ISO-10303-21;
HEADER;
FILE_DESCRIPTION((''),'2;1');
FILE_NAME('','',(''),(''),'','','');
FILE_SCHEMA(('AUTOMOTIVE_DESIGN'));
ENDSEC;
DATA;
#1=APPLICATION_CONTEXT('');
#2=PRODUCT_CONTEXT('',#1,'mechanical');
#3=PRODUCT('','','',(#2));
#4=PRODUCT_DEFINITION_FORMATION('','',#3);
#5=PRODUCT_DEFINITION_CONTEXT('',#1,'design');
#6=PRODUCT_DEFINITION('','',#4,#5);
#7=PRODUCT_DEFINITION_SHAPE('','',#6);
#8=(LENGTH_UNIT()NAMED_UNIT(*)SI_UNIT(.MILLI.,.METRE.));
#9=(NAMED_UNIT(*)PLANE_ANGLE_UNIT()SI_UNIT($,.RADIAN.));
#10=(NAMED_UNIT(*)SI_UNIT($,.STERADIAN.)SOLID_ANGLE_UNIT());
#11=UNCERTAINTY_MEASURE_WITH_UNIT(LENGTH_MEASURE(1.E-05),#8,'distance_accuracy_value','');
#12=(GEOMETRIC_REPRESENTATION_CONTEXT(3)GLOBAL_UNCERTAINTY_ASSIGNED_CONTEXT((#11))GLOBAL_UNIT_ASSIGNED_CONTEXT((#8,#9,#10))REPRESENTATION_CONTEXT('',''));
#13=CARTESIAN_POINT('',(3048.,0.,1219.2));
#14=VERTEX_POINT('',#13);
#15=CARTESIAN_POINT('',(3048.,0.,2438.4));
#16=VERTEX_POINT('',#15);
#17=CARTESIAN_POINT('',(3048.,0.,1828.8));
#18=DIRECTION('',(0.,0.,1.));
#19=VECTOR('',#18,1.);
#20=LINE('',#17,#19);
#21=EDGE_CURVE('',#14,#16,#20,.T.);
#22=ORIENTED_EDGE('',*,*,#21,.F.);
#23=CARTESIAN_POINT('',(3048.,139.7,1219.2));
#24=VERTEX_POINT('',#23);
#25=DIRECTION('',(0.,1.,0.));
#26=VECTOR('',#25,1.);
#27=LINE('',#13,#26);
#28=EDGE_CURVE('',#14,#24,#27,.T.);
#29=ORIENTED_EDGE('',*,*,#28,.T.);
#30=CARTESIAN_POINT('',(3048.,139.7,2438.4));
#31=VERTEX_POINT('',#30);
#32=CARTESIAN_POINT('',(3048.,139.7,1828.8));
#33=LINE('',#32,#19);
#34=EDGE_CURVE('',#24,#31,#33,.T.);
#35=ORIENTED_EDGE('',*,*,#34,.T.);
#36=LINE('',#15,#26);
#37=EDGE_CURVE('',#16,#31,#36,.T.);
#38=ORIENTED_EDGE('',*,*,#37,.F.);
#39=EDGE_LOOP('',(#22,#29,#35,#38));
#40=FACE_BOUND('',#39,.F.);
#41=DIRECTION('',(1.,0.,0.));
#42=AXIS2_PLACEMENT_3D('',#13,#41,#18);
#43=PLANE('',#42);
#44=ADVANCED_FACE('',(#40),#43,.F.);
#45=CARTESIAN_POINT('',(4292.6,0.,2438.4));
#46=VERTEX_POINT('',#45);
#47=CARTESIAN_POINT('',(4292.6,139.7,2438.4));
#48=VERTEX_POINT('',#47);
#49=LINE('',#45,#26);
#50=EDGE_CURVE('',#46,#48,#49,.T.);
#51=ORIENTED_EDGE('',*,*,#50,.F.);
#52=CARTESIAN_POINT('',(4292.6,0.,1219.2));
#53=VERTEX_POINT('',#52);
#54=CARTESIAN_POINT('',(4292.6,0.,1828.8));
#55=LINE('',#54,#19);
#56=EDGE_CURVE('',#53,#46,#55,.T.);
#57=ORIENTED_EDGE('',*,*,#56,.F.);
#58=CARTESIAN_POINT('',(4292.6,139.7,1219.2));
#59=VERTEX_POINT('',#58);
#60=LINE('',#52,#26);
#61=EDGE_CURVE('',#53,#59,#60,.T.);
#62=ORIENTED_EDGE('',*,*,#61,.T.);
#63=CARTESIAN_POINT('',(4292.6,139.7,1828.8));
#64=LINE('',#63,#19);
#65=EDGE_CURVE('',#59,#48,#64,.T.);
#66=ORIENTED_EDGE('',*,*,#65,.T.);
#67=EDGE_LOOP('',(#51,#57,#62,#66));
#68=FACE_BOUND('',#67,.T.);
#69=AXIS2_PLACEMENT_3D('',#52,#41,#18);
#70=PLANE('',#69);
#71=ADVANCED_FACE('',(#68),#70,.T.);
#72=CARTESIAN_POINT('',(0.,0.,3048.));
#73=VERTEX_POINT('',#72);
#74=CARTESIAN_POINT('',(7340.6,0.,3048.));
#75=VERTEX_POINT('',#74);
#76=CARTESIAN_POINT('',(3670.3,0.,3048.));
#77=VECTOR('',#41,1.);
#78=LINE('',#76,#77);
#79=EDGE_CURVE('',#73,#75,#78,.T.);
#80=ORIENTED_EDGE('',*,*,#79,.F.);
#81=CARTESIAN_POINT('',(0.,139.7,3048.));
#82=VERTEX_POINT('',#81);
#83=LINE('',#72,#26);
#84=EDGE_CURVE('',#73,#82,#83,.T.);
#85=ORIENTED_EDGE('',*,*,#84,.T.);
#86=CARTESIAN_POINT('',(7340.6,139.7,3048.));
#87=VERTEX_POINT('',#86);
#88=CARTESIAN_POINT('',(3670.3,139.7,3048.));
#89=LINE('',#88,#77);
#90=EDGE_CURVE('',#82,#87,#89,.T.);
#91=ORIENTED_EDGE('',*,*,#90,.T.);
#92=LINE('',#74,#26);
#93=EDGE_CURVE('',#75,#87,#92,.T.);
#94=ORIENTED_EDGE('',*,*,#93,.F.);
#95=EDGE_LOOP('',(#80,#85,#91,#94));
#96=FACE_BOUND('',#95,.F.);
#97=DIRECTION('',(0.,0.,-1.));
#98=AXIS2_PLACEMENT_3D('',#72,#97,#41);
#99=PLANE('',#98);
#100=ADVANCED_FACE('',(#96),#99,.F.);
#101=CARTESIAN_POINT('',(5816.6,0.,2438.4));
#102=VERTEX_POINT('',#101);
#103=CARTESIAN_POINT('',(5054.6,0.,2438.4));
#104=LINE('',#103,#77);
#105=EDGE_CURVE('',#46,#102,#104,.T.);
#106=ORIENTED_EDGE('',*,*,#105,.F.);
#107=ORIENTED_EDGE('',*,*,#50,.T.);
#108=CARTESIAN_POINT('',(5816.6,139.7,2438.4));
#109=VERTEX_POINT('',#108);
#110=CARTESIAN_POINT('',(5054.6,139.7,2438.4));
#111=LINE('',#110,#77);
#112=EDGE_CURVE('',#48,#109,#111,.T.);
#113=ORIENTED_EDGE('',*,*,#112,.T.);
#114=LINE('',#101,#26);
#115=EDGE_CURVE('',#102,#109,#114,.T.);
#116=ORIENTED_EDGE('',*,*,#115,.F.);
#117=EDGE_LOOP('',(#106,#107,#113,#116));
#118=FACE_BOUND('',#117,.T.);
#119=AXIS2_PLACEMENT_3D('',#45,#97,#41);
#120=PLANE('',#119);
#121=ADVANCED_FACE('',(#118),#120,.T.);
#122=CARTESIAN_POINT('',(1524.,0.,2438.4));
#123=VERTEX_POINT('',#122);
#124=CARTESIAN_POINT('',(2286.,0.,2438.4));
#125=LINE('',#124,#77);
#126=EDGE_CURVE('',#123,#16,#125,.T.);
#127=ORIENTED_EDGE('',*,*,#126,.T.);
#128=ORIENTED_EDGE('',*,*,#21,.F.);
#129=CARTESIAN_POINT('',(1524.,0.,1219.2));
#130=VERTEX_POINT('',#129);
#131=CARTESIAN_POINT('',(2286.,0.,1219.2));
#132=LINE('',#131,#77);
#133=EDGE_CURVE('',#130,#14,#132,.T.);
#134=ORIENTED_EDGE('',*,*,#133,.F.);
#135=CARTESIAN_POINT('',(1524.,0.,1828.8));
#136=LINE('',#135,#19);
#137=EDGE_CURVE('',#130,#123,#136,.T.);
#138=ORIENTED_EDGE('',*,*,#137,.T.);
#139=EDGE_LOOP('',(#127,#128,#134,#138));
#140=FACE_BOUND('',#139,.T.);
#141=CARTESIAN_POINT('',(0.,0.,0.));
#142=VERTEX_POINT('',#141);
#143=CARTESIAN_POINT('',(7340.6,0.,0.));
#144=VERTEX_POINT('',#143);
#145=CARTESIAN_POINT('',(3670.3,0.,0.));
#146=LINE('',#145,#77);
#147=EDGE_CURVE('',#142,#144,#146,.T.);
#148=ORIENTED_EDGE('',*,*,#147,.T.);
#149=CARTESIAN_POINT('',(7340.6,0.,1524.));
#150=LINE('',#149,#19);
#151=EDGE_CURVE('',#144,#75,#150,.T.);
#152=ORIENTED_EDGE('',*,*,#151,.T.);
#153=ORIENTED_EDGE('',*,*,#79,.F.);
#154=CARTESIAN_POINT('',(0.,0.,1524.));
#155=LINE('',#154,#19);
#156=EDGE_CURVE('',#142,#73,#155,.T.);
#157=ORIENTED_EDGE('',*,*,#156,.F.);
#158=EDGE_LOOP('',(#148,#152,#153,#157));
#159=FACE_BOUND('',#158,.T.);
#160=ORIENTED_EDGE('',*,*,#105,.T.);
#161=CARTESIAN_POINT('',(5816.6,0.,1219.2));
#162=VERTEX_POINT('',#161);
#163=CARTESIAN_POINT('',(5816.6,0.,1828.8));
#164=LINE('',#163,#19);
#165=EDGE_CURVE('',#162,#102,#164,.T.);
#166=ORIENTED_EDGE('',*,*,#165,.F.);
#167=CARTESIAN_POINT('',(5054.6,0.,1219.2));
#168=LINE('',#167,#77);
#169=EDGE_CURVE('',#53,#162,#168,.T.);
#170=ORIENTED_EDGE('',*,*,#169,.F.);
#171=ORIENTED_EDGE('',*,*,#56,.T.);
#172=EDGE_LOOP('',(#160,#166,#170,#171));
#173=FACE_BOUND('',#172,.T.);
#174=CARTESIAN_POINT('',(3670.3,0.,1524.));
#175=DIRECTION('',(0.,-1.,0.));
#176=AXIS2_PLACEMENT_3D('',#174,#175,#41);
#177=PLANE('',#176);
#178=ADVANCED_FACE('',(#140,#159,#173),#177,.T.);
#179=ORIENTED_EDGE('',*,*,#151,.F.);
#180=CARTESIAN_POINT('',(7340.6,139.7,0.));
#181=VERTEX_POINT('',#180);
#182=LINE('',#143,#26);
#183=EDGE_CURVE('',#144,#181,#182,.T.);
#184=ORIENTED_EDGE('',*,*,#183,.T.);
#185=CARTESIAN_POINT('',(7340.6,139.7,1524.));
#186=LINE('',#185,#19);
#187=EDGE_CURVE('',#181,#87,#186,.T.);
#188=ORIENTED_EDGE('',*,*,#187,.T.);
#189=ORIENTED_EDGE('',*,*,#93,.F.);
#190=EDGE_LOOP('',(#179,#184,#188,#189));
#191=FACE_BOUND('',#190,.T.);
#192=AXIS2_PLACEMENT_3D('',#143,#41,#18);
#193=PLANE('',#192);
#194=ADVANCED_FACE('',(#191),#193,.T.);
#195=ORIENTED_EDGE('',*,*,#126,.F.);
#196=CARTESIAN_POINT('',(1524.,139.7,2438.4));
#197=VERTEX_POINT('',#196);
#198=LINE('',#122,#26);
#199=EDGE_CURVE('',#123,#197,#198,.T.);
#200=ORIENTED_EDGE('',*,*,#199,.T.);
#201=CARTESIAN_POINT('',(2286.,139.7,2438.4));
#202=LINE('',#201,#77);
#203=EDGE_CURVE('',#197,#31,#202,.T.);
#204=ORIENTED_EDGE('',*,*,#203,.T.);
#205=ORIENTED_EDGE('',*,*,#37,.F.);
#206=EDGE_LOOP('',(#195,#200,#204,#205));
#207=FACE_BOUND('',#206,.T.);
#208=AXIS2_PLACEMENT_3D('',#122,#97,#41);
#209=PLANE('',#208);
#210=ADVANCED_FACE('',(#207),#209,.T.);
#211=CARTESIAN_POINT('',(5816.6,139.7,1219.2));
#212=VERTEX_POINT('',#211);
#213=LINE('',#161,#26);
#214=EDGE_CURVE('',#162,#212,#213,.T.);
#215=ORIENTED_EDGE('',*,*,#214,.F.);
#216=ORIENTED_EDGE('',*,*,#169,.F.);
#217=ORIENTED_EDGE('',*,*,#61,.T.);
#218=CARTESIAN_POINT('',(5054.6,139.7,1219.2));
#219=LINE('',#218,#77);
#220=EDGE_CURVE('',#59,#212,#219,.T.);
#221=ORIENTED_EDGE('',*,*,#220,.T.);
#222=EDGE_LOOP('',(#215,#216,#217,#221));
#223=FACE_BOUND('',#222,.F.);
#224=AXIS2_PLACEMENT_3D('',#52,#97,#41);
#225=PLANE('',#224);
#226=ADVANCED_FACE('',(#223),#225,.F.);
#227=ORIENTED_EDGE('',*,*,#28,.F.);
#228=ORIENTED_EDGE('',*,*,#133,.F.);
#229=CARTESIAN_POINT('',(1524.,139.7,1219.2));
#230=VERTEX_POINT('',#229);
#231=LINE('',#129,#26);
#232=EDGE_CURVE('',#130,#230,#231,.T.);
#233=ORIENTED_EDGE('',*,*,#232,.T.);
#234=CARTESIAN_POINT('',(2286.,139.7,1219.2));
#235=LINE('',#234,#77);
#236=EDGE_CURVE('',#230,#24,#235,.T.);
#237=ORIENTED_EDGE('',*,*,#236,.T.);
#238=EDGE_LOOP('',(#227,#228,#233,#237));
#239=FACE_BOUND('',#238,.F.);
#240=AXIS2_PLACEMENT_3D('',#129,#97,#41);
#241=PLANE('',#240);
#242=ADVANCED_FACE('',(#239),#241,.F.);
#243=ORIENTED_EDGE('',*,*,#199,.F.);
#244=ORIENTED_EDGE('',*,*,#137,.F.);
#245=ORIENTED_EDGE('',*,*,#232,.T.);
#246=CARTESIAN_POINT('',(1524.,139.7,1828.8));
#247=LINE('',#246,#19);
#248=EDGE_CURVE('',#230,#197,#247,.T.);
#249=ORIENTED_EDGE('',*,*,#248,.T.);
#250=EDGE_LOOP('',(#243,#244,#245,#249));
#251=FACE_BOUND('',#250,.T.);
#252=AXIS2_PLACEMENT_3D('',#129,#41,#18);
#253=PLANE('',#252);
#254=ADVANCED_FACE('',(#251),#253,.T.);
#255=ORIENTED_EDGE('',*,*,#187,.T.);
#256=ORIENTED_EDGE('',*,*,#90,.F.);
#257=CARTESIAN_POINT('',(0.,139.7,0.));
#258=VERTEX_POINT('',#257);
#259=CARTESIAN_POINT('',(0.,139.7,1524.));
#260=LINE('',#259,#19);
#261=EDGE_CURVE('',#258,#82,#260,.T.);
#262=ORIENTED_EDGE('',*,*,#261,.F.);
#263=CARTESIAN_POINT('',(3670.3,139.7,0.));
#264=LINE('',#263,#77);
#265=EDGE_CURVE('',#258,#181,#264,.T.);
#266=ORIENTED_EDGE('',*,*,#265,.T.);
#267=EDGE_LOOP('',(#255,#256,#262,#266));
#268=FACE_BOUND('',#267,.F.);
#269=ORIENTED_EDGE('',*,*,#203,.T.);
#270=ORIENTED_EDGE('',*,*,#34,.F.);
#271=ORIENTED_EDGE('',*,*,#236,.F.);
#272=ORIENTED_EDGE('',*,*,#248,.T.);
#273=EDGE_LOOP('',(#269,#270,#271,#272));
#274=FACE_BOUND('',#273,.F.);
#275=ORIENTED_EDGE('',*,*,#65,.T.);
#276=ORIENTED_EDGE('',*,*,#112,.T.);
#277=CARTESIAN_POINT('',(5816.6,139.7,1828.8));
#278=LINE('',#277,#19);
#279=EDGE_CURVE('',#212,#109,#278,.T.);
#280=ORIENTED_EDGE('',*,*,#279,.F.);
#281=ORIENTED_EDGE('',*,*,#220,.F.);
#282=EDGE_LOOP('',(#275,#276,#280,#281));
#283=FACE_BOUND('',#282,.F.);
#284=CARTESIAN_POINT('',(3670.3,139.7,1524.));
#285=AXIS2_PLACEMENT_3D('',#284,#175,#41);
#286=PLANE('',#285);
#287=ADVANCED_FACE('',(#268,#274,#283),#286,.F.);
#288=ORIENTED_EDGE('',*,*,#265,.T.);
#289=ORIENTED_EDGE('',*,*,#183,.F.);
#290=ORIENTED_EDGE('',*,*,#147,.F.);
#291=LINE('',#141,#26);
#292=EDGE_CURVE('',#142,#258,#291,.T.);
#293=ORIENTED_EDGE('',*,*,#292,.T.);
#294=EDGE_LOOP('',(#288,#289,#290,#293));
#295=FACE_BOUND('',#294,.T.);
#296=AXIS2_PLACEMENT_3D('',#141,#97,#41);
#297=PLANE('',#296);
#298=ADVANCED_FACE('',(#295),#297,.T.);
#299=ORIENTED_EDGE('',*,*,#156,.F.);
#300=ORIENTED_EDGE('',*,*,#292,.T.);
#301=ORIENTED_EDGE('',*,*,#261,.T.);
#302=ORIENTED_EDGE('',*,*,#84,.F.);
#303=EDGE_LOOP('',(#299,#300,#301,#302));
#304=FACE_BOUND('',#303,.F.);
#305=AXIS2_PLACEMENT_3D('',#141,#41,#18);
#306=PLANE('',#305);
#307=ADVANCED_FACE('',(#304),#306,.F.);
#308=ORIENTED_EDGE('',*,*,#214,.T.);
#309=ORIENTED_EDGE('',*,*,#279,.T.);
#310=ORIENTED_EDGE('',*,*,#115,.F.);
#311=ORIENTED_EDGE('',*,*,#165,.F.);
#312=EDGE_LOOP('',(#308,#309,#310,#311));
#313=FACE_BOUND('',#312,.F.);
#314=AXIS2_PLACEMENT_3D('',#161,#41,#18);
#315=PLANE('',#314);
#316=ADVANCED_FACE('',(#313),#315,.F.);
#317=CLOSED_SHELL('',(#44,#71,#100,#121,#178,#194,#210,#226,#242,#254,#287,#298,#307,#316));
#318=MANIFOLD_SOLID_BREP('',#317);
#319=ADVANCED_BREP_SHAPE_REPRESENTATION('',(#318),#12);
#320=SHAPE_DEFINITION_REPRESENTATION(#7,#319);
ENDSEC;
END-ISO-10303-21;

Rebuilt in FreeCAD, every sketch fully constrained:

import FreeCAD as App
import Part
import Sketcher

V = App.Vector
Q = App.Units.Quantity

doc = App.newDocument("Part")
params = doc.addObject("Spreadsheet::Sheet", "Params")
for row, (alias, value) in enumerate([
    ("sketch1_width", "289 in"),
    ("sketch1_width2", "60 in"),
    ("sketch1_height", "120 in"),
    ("sketch1_height2", "48 in"),
    ("pad1_length", "5.5 in"),
], start=1):
    params.set(f"A{row}", alias)
    params.set(f"B{row}", "=" + value)
    params.setAlias(f"B{row}", alias)

body = doc.addObject("PartDesign::Body", "Body")

sketch1 = body.newObject("Sketcher::SketchObject", "Sketch")
sketch1.AttachmentSupport = (doc.getObject("XZ_Plane"), [""])
sketch1.MapMode = "FlatFace"
sketch1.addGeometry([
    Part.LineSegment(V(0, 3048, 0), V(0, 0, 0)),
    Part.LineSegment(V(0, 0, 0), V(7340.6, 0, 0)),
    Part.LineSegment(V(7340.6, 0, 0), V(7340.6, 3048, 0)),
    Part.LineSegment(V(7340.6, 3048, 0), V(0, 3048, 0)),
    Part.LineSegment(V(3048, 1219.2, 0), V(1524, 1219.2, 0)),
    Part.LineSegment(V(1524, 1219.2, 0), V(1524, 2438.4, 0)),
    Part.LineSegment(V(1524, 2438.4, 0), V(3048, 2438.4, 0)),
    Part.LineSegment(V(3048, 2438.4, 0), V(3048, 1219.2, 0)),
    Part.LineSegment(V(5816.6, 1219.2, 0), V(4292.6, 1219.2, 0)),
    Part.LineSegment(V(4292.6, 1219.2, 0), V(4292.6, 2438.4, 0)),
    Part.LineSegment(V(4292.6, 2438.4, 0), V(5816.6, 2438.4, 0)),
    Part.LineSegment(V(5816.6, 2438.4, 0), V(5816.6, 1219.2, 0)),
], False)
sketch1.addConstraint([
    Sketcher.Constraint("Coincident", 0, 2, 1, 1),
    Sketcher.Constraint("Coincident", 1, 2, 2, 1),
    Sketcher.Constraint("Coincident", 2, 2, 3, 1),
    Sketcher.Constraint("Coincident", 3, 2, 0, 1),
    Sketcher.Constraint("Coincident", 4, 2, 5, 1),
    Sketcher.Constraint("Coincident", 5, 2, 6, 1),
    Sketcher.Constraint("Coincident", 6, 2, 7, 1),
    Sketcher.Constraint("Coincident", 7, 2, 4, 1),
    Sketcher.Constraint("Coincident", 8, 2, 9, 1),
    Sketcher.Constraint("Coincident", 9, 2, 10, 1),
    Sketcher.Constraint("Coincident", 10, 2, 11, 1),
    Sketcher.Constraint("Coincident", 11, 2, 8, 1),
    Sketcher.Constraint("Vertical", 0),
    Sketcher.Constraint("Horizontal", 1),
    Sketcher.Constraint("Vertical", 2),
    Sketcher.Constraint("Horizontal", 3),
    Sketcher.Constraint("Horizontal", 4),
    Sketcher.Constraint("Vertical", 5),
    Sketcher.Constraint("Horizontal", 6),
    Sketcher.Constraint("Vertical", 7),
    Sketcher.Constraint("Horizontal", 8),
    Sketcher.Constraint("Vertical", 9),
    Sketcher.Constraint("Horizontal", 10),
    Sketcher.Constraint("Vertical", 11),
    Sketcher.Constraint("Coincident", 0, 2, -1, 1),
    Sketcher.Constraint("Horizontal", 7, 2, 8, 2),
    Sketcher.Constraint("Horizontal", 6, 2, 9, 2),
    Sketcher.Constraint("Equal", 6, 8),
    Sketcher.Constraint("DistanceX", 1, 1, 1, 2, Q("289 in")),
    Sketcher.Constraint("DistanceX", 4, 2, 4, 1, Q("60 in")),
    Sketcher.Constraint("DistanceY", 0, 2, 0, 1, Q("120 in")),
    Sketcher.Constraint("DistanceY", 5, 1, 5, 2, Q("48 in")),
    Sketcher.Constraint("DistanceX", -1, 1, 4, 2, Q("60 in")),
    Sketcher.Constraint("DistanceY", -1, 1, 4, 2, Q("48 in")),
    Sketcher.Constraint("DistanceX", -1, 1, 8, 2, Q("169 in")),
])
sketch1.setExpression("Constraints[28]", "Params.sketch1_width")
sketch1.setExpression("Constraints[29]", "Params.sketch1_width2")
sketch1.setExpression("Constraints[30]", "Params.sketch1_height")
sketch1.setExpression("Constraints[31]", "Params.sketch1_height2")
pad1 = body.newObject("PartDesign::Pad", "Pad")
pad1.Profile = sketch1
pad1.setExpression("Length", "Params.pad1_length")
pad1.Reversed = True

doc.recompute()
